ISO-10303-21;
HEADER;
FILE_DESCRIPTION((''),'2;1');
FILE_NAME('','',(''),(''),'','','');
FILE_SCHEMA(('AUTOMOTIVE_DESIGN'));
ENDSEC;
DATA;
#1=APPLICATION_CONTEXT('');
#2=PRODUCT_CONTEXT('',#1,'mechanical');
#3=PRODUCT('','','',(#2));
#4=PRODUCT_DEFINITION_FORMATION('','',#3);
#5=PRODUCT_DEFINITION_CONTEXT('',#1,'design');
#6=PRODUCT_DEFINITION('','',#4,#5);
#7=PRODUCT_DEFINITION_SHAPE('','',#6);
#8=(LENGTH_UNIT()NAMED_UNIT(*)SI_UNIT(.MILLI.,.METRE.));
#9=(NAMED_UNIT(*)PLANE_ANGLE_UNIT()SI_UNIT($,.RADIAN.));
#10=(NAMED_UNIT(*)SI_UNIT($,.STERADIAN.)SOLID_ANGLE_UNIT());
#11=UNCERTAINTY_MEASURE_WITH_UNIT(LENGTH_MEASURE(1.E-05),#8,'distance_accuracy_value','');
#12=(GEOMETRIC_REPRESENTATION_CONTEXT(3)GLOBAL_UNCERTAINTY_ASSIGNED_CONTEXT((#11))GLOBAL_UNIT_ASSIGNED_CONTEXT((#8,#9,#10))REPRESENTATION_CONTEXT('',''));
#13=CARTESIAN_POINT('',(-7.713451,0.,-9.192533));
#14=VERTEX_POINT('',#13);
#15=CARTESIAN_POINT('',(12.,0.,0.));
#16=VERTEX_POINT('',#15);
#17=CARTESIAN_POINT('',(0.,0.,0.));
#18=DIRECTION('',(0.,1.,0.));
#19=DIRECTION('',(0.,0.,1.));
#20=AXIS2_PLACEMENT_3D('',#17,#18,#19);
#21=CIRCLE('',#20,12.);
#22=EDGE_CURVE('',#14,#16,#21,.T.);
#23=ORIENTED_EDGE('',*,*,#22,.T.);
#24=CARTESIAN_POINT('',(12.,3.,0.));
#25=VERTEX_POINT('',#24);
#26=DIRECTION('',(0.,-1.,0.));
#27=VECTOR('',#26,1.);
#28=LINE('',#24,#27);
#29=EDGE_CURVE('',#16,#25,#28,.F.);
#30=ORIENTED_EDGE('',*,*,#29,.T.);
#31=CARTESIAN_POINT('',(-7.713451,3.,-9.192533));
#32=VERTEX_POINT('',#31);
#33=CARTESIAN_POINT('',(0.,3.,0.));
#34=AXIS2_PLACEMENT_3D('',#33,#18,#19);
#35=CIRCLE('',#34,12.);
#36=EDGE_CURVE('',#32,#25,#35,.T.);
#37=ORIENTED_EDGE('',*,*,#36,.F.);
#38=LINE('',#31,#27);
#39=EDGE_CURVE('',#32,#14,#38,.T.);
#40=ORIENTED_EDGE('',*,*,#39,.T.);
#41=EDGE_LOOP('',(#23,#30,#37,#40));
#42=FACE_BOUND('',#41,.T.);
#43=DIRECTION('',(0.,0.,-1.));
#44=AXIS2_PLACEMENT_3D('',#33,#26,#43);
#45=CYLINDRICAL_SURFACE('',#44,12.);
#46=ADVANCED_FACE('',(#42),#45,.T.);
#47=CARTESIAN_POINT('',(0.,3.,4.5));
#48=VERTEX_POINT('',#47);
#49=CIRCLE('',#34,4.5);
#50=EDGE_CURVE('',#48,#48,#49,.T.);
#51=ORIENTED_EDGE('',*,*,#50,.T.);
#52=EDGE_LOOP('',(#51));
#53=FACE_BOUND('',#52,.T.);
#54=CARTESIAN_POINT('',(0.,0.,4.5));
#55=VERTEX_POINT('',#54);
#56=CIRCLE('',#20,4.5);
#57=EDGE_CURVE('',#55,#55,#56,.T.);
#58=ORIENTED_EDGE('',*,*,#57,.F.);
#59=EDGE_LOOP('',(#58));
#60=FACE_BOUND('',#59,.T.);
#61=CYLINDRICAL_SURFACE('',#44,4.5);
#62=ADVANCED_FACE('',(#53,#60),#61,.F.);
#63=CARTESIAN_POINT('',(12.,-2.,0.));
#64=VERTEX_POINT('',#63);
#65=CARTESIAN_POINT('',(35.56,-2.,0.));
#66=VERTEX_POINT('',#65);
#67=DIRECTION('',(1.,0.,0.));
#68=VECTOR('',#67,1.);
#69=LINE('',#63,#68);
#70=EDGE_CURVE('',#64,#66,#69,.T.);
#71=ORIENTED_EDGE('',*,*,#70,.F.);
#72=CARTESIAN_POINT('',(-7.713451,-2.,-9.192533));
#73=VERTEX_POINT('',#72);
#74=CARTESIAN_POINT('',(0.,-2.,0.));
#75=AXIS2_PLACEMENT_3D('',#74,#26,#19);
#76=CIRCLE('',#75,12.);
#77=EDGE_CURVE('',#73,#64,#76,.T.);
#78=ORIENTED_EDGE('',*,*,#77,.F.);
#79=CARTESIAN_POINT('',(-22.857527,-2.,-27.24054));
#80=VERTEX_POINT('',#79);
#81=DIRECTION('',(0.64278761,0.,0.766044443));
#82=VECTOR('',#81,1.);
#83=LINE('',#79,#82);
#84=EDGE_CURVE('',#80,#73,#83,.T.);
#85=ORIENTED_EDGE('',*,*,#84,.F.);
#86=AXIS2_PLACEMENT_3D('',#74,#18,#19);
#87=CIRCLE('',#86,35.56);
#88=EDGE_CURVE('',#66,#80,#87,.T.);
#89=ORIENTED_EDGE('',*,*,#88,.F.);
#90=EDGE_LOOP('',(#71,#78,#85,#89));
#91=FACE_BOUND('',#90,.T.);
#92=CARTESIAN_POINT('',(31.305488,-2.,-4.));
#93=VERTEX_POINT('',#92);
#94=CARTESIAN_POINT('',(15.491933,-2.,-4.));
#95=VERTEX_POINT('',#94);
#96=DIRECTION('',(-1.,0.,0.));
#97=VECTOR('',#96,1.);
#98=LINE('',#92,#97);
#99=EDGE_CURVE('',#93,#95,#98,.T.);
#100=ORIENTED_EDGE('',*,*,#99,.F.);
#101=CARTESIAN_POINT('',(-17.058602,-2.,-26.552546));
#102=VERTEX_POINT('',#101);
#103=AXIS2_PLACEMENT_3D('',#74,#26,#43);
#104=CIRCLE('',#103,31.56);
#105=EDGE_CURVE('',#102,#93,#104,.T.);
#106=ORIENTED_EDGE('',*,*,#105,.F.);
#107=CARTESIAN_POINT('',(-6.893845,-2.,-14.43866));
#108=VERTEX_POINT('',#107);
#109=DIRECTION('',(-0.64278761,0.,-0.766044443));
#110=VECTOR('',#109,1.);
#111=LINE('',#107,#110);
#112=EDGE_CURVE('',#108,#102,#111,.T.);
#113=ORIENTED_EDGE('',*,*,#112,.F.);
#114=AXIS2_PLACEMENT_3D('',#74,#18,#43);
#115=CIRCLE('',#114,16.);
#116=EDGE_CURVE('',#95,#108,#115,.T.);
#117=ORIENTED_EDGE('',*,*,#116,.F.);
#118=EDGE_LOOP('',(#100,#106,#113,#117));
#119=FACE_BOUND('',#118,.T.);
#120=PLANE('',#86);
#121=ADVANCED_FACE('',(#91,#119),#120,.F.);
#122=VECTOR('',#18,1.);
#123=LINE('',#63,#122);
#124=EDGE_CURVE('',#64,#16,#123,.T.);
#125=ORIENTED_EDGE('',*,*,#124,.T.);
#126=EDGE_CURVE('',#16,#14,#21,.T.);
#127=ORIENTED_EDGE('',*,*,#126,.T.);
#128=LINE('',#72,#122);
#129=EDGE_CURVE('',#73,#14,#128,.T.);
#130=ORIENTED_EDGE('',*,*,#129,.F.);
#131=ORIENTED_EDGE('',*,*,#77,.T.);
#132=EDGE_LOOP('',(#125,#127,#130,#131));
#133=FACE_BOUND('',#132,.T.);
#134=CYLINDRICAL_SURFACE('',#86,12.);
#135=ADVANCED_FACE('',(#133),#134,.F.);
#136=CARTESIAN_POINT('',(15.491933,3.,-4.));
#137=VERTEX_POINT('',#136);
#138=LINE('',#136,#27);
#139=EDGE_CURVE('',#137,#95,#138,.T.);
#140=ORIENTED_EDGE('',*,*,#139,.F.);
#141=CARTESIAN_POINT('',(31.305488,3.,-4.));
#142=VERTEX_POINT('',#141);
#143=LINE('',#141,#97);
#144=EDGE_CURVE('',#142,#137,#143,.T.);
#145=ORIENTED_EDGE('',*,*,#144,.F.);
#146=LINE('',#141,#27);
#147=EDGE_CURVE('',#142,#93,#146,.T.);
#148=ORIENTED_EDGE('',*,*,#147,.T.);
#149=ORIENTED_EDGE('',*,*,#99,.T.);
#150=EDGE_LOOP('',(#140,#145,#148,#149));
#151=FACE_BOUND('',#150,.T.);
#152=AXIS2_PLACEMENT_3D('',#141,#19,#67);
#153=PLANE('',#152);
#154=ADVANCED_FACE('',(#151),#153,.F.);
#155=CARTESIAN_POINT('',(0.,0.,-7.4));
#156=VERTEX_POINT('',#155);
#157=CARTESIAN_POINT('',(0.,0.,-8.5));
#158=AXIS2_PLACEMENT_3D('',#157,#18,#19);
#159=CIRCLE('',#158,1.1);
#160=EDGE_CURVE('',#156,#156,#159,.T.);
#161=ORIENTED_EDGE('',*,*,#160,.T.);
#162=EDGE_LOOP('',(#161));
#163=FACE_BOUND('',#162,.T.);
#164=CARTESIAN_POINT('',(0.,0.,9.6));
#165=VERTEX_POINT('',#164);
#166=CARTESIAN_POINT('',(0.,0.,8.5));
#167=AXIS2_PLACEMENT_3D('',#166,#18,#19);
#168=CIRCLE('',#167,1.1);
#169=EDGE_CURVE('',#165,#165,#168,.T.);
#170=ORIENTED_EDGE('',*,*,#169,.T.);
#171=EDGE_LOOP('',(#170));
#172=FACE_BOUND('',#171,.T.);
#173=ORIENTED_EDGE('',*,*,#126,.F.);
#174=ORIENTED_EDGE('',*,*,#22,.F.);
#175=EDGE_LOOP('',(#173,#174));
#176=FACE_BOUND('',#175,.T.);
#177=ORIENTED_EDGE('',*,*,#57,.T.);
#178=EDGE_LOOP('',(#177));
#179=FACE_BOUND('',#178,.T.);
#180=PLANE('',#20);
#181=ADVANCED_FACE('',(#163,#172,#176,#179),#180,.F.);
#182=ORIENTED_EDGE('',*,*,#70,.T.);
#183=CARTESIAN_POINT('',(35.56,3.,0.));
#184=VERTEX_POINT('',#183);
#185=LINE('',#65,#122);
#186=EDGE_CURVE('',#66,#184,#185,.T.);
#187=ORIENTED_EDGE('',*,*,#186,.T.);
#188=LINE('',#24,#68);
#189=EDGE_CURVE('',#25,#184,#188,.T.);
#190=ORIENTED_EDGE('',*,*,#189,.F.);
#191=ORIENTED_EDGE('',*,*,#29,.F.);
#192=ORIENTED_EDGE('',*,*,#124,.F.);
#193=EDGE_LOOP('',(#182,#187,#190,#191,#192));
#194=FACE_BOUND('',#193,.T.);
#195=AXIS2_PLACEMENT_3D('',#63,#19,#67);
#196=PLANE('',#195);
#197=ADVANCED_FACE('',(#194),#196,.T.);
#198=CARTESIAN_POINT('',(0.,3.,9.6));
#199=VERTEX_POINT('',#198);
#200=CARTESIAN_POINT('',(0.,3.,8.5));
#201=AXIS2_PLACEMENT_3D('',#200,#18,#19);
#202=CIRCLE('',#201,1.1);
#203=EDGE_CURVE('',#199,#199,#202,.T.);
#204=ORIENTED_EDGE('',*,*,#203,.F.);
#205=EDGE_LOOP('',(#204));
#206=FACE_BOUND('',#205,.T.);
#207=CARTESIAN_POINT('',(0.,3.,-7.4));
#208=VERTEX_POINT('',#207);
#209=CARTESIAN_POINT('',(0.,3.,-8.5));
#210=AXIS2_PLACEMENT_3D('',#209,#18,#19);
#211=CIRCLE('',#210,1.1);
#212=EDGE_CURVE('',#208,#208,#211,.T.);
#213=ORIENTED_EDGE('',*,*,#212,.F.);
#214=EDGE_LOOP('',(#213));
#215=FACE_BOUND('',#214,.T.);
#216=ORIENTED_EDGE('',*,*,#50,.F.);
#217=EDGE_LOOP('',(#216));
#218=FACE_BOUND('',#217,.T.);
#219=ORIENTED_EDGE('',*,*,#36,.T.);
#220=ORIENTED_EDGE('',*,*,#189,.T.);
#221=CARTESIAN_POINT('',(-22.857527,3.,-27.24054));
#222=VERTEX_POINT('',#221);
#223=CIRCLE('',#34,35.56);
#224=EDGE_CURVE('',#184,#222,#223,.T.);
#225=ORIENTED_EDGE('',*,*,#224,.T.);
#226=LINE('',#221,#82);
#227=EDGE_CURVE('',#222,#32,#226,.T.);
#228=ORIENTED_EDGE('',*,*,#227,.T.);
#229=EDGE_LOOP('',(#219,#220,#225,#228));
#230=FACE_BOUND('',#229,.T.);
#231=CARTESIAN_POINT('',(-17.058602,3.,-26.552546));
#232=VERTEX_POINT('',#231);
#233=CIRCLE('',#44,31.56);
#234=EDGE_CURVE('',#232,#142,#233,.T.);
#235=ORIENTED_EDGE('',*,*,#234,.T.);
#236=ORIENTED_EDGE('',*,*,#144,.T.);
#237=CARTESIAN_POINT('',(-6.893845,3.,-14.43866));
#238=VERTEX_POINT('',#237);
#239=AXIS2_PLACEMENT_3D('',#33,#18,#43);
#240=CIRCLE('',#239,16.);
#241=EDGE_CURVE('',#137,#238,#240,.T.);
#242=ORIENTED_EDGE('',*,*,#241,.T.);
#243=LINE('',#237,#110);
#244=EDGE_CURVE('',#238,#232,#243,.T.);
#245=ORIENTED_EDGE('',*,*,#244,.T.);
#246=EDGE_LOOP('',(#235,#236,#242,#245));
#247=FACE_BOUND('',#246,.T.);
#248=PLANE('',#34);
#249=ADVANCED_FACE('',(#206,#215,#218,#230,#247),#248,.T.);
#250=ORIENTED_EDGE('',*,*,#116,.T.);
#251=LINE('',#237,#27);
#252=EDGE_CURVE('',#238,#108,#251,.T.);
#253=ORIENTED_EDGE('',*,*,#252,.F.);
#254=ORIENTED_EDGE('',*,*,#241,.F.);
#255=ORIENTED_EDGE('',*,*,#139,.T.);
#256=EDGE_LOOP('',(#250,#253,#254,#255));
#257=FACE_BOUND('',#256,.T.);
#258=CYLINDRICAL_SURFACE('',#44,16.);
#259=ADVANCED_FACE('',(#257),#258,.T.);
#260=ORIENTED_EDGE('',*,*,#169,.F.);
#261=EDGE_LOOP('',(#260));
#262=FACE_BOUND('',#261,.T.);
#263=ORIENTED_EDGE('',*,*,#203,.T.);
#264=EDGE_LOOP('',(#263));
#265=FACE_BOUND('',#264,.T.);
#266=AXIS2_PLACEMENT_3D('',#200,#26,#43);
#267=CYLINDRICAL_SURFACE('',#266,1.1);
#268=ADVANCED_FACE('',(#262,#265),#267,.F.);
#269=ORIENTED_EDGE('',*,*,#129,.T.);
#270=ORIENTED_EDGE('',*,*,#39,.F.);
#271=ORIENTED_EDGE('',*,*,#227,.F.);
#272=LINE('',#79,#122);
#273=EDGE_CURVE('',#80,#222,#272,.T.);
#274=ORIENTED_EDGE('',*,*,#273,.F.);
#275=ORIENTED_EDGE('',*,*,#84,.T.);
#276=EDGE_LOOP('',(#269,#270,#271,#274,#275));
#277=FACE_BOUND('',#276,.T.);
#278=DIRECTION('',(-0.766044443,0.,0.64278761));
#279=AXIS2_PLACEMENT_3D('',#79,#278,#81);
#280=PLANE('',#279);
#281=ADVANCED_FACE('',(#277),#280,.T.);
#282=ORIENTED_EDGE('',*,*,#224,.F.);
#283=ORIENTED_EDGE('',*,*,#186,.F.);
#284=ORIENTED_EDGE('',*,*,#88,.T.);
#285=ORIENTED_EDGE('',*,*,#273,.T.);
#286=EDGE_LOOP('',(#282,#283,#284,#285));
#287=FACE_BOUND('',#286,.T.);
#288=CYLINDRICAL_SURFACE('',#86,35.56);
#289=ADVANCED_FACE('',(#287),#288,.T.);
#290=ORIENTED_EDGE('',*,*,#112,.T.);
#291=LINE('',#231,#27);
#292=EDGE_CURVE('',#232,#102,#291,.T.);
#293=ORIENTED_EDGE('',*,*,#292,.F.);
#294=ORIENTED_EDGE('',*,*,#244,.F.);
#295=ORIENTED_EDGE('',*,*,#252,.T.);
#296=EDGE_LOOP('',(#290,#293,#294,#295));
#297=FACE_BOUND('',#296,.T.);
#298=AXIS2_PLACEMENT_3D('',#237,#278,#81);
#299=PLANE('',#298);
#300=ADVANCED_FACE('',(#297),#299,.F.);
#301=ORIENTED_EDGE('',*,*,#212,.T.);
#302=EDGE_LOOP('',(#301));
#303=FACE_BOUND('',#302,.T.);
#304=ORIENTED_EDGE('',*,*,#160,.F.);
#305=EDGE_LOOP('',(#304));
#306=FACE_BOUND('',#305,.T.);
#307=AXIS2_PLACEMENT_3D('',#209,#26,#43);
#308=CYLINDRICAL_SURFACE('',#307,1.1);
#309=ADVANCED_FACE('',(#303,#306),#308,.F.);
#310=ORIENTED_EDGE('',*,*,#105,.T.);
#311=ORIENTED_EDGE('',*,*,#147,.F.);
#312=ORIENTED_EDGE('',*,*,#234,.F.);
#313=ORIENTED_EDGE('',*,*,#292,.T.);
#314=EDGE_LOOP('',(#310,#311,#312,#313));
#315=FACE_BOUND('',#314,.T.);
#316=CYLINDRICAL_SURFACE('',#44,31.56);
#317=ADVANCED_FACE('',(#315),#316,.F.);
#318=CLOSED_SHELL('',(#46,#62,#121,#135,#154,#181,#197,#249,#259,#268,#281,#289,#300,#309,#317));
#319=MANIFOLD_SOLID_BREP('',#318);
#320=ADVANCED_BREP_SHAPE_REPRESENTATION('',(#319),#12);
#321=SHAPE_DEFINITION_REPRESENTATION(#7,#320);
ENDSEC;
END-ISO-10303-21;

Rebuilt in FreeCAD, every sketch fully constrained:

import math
import FreeCAD as App
import Part
import Sketcher
from FreeCAD import Vector
Q = App.Units.Quantity

doc = App.newDocument("Part")
params = doc.addObject("Spreadsheet::Sheet", "Params")
for row, (alias, value) in enumerate([
    ("sketch1_diameter", "24 mm"),
    ("sketch1_diameter2", "9 mm"),
    ("sketch1_diameter3", "2.2 mm"),
    ("pad1_length", "3 mm"),
    ("sketch2_radius", "12 mm"),
    ("sketch2_radius2", "35.56 mm"),
    ("pad2_length", "5 mm"),
    ("sketch3_radius", "16 mm"),
    ("sketch3_radius2", "31.56 mm"),
], start=1):
    params.set(f"A{row}", alias)
    params.set(f"B{row}", "=" + value)
    params.setAlias(f"B{row}", alias)

body = doc.addObject("PartDesign::Body", "Body")

# Sketch on XZ plane
sketch1 = doc.addObject("Sketcher::SketchObject", "Sketch")
body.addObject(sketch1)
sketch1.AttachmentSupport = (doc.XZ_Plane, [""])
sketch1.MapMode = "FlatFace"
sketch1.addGeometry([
    Part.Circle(Vector(0, 0, 0), Vector(0, 0, 1), 12),
    Part.Circle(Vector(0, 8.5, 0), Vector(0, 0, 1), 1.1),
    Part.Circle(Vector(0, 0, 0), Vector(0, 0, 1), 4.5),
    Part.Circle(Vector(0, -8.5, 0), Vector(0, 0, 1), 1.1),
], False)
sketch1.addConstraint([
    Sketcher.Constraint("Coincident", 0, 3, -1, 1),
    Sketcher.Constraint("Coincident", 2, 3, -1, 1),
    Sketcher.Constraint("Equal", 1, 3),
    Sketcher.Constraint("Symmetric", 1, 3, 3, 3, -1, 1),
    Sketcher.Constraint("PointOnObject", 1, 3, -2),
    Sketcher.Constraint("Diameter", 0, 24.0),
    Sketcher.Constraint("Diameter", 2, 9.0),
    Sketcher.Constraint("Diameter", 1, 2.2),
    Sketcher.Constraint("DistanceY", 3, 3, 1, 3, 17.0),
])
sketch1.setExpression("Constraints[5]", "Params.sketch1_diameter")
sketch1.setExpression("Constraints[6]", "Params.sketch1_diameter2")
sketch1.setExpression("Constraints[7]", "Params.sketch1_diameter3")
pad1 = doc.addObject("PartDesign::Pad", "Pad")
body.addObject(pad1)
pad1.Profile = sketch1
pad1.setExpression("Length", "Params.pad1_length")
pad1.Reversed = True

# Sketch on XZ plane
sketch2 = doc.addObject("Sketcher::SketchObject", "Sketch001")
body.addObject(sketch2)
sketch2.AttachmentSupport = (doc.XZ_Plane, [""])
sketch2.MapMode = "FlatFace"
sketch2.AttachmentOffset = App.Placement(Vector(0, 0, -3), App.Rotation())
sketch2.addGeometry([
    Part.LineSegment(Vector(12, 0, 0), Vector(36, 0, 0)),
    Part.ArcOfCircle(Part.Circle(Vector(0, 0, 0), Vector(0, 0, 1), 36), math.radians(-130), math.radians(0)),
    Part.LineSegment(Vector(-23, -27, 0), Vector(-8, -9, 0)),
    Part.ArcOfCircle(Part.Circle(Vector(0, 0, 0), Vector(0, 0, 1), 12), math.radians(-130), math.radians(0)),
], False)
sketch2.addConstraint([
    Sketcher.Constraint("Coincident", 0, 2, 1, 2),
    Sketcher.Constraint("Coincident", 1, 1, 2, 1),
    Sketcher.Constraint("Coincident", 2, 2, 3, 1),
    Sketcher.Constraint("Coincident", 3, 2, 0, 1),
    Sketcher.Constraint("Horizontal", 0),
    Sketcher.Constraint("Coincident", 1, 3, -1, 1),
    Sketcher.Constraint("Coincident", 3, 3, -1, 1),
    Sketcher.Constraint("PointOnObject", 0, 2, -1),
    Sketcher.Constraint("Radius", 3, 12.0),
    Sketcher.Constraint("Angle", 2, Q("50 deg")),
    Sketcher.Constraint("Radius", 1, 35.56),
    Sketcher.Constraint("DistanceY", 1, 1, -1, 1, 27.24054),
])
sketch2.setExpression("Constraints[8]", "Params.sketch2_radius")
sketch2.setExpression("Constraints[10]", "Params.sketch2_radius2")
pad2 = doc.addObject("PartDesign::Pad", "Pad001")
body.addObject(pad2)
pad2.Profile = sketch2
pad2.setExpression("Length", "Params.pad2_length")

# Sketch on XZ plane
sketch3 = doc.addObject("Sketcher::SketchObject", "Sketch002")
body.addObject(sketch3)
sketch3.AttachmentSupport = (doc.XZ_Plane, [""])
sketch3.MapMode = "FlatFace"
sketch3.AttachmentOffset = App.Placement(Vector(0, 0, 2), App.Rotation())
sketch3.addGeometry([
    Part.LineSegment(Vector(31, -4, 0), Vector(15, -4, 0)),
    Part.ArcOfCircle(Part.Circle(Vector(0, 0, 0), Vector(0, 0, 1), 16), math.radians(-116), math.radians(-14)),
    Part.LineSegment(Vector(-7, -14, 0), Vector(-17, -27, 0)),
    Part.ArcOfCircle(Part.Circle(Vector(0, 0, 0), Vector(0, 0, 1), 32), math.radians(-123), math.radians(-7)),
], False)
sketch3.addConstraint([
    Sketcher.Constraint("Coincident", 0, 2, 1, 2),
    Sketcher.Constraint("Coincident", 1, 1, 2, 1),
    Sketcher.Constraint("Coincident", 2, 2, 3, 1),
    Sketcher.Constraint("Coincident", 3, 2, 0, 1),
    Sketcher.Constraint("Horizontal", 0),
    Sketcher.Constraint("Coincident", 1, 3, -1, 1),
    Sketcher.Constraint("Coincident", 3, 3, -1, 1),
    Sketcher.Constraint("Radius", 1, 16.0),
    Sketcher.Constraint("Angle", 2, Q("-130 deg")),
    Sketcher.Constraint("Radius", 3, 31.56),
    Sketcher.Constraint("DistanceY", 0, 2, -1, 1, 4.0),
    Sketcher.Constraint("DistanceY", 1, 1, -1, 1, 14.43866),
])
sketch3.setExpression("Constraints[7]", "Params.sketch3_radius")
sketch3.setExpression("Constraints[9]", "Params.sketch3_radius2")
pocket1 = doc.addObject("PartDesign::Pocket", "Pocket")
body.addObject(pocket1)
pocket1.Profile = sketch3
pocket1.Type = "ThroughAll"

doc.recompute()
